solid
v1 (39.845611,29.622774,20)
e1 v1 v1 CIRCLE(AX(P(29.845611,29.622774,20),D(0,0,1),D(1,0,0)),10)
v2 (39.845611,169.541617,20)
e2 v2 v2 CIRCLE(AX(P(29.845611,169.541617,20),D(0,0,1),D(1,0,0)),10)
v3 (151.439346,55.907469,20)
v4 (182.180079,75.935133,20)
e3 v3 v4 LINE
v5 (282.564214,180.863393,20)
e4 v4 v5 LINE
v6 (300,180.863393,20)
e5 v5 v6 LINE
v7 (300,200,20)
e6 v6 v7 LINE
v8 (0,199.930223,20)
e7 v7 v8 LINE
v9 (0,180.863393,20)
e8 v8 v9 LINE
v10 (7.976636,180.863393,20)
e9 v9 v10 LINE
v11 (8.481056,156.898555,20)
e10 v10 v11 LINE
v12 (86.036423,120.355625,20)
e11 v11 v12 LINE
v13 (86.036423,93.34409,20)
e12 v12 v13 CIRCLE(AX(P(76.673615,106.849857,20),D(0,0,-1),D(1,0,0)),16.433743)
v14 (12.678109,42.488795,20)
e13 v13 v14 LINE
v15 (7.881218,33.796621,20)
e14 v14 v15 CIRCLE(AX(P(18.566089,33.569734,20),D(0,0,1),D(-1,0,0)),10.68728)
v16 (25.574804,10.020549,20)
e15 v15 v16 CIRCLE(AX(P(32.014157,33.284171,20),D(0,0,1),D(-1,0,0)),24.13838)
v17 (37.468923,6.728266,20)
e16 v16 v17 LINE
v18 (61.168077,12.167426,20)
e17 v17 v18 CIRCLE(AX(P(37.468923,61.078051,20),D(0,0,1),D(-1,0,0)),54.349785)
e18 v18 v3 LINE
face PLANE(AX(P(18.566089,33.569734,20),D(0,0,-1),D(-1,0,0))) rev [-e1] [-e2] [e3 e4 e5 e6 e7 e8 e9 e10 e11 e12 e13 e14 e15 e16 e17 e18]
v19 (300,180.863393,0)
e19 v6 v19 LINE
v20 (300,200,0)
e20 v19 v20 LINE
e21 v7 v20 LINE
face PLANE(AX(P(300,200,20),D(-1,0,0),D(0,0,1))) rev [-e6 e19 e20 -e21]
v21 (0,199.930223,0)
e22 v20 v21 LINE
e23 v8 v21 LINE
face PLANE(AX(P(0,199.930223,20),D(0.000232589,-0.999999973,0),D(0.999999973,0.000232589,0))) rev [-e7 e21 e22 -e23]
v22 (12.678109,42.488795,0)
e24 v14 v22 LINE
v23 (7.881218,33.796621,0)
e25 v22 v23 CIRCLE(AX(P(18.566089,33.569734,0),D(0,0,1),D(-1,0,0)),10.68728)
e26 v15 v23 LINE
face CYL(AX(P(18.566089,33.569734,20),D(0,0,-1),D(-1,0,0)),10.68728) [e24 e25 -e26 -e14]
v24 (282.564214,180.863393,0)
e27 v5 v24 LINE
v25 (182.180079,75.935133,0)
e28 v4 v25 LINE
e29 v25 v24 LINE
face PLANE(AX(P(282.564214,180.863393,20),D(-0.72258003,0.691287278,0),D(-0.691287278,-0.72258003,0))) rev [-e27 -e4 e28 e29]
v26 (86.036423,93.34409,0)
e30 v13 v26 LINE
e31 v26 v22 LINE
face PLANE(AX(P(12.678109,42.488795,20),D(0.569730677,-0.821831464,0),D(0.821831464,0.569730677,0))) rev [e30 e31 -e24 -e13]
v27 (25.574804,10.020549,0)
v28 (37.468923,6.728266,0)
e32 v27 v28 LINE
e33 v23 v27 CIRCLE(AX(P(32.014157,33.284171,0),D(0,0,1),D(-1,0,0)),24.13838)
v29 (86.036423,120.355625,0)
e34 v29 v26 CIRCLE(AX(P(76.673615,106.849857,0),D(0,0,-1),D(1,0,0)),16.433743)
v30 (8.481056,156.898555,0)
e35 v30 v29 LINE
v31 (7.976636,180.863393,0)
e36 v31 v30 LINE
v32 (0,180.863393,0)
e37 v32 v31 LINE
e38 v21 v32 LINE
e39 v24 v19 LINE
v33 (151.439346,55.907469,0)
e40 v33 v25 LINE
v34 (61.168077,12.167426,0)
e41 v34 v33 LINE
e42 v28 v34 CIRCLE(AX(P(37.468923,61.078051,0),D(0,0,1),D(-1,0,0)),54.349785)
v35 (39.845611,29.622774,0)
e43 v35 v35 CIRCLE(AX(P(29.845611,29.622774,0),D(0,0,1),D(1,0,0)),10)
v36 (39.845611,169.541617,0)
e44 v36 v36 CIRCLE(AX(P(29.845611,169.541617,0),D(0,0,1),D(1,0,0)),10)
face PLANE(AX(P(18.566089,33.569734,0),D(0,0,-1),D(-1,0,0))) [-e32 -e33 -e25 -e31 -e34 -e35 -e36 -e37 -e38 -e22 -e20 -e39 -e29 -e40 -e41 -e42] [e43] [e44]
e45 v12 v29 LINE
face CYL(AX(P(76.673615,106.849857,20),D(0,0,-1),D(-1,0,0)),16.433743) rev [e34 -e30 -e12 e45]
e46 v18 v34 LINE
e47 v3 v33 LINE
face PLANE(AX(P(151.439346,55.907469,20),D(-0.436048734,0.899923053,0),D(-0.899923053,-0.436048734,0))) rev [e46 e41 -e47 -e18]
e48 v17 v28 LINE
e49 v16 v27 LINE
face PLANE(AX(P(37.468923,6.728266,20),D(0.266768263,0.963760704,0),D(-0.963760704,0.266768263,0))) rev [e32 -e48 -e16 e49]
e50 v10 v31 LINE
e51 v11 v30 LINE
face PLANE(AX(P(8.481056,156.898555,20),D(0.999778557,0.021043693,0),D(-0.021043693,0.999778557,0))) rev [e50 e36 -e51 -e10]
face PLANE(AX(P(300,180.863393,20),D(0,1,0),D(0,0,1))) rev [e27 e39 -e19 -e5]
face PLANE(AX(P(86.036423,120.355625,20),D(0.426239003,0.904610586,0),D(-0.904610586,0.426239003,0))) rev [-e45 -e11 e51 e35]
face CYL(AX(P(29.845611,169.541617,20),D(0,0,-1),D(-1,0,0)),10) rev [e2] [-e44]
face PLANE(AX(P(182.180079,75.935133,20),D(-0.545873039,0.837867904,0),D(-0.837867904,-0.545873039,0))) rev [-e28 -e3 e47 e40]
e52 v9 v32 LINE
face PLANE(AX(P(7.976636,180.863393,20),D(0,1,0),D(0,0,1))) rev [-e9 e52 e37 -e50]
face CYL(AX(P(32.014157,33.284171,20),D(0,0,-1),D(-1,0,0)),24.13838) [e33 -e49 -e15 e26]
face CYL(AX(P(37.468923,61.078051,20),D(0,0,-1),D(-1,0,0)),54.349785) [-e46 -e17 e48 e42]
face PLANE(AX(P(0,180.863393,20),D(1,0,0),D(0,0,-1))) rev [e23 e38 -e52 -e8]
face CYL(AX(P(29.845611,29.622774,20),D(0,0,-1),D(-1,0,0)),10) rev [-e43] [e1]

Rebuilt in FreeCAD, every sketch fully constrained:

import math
import FreeCAD as App
import Part
import Sketcher

V = App.Vector
Q = App.Units.Quantity

doc = App.newDocument("Part")
params = doc.addObject("Spreadsheet::Sheet", "Params")
for row, (alias, value) in enumerate([
    ("sketch1_diameter", "20 mm"),
    ("pad1_length", "20 mm"),
], start=1):
    params.set(f"A{row}", alias)
    params.set(f"B{row}", "=" + value)
    params.setAlias(f"B{row}", alias)

body = doc.addObject("PartDesign::Body", "Body")

sketch1 = body.newObject("Sketcher::SketchObject", "Sketch")
sketch1.AttachmentSupport = (doc.getObject("XY_Plane"), [""])
sketch1.MapMode = "FlatFace"
sketch1.addGeometry([
    Part.LineSegment(V(86, 93, 0), V(13, 42, 0)),
    Part.ArcOfCircle(Part.Circle(V(19, 34, 0), V(0, 0, 1), 11), math.radians(123), math.radians(179)),
    Part.ArcOfCircle(Part.Circle(V(32, 33, 0), V(0, 0, 1), 24), math.radians(179), math.radians(255)),
    Part.LineSegment(V(26, 10, 0), V(37, 7, 0)),
    Part.ArcOfCircle(Part.Circle(V(37, 61, 0), V(0, 0, 1), 54), math.radians(-90), math.radians(-64)),
    Part.LineSegment(V(61, 12, 0), V(151, 56, 0)),
    Part.LineSegment(V(151, 56, 0), V(182, 76, 0)),
    Part.LineSegment(V(182, 76, 0), V(283, 181, 0)),
    Part.LineSegment(V(283, 181, 0), V(300, 181, 0)),
    Part.LineSegment(V(300, 181, 0), V(300, 200, 0)),
    Part.LineSegment(V(300, 200, 0), V(0, 200, 0)),
    Part.LineSegment(V(0, 200, 0), V(0, 181, 0)),
    Part.LineSegment(V(0, 181, 0), V(8, 181, 0)),
    Part.LineSegment(V(8, 181, 0), V(8, 157, 0)),
    Part.LineSegment(V(8, 157, 0), V(86, 120, 0)),
    Part.ArcOfCircle(Part.Circle(V(77, 107, 0), V(0, 0, 1), 16), math.radians(-55), math.radians(55)),
    Part.Circle(V(30, 30, 0), V(0, 0, 1), 10),
    Part.Circle(V(30, 170, 0), V(0, 0, 1), 10),
], False)
sketch1.addConstraint([
    Sketcher.Constraint("Coincident", 0, 2, 1, 1),
    Sketcher.Constraint("Tangent", 1, 2, 2, 1),
    Sketcher.Constraint("Tangent", 2, 2, 3, 1),
    Sketcher.Constraint("Coincident", 3, 2, 4, 1),
    Sketcher.Constraint("Tangent", 4, 2, 5, 1),
    Sketcher.Constraint("Coincident", 5, 2, 6, 1),
    Sketcher.Constraint("Coincident", 6, 2, 7, 1),
    Sketcher.Constraint("Coincident", 7, 2, 8, 1),
    Sketcher.Constraint("Coincident", 8, 2, 9, 1),
    Sketcher.Constraint("Coincident", 9, 2, 10, 1),
    Sketcher.Constraint("Coincident", 10, 2, 11, 1),
    Sketcher.Constraint("Coincident", 11, 2, 12, 1),
    Sketcher.Constraint("Coincident", 12, 2, 13, 1),
    Sketcher.Constraint("Coincident", 13, 2, 14, 1),
    Sketcher.Constraint("Coincident", 14, 2, 15, 2),
    Sketcher.Constraint("Tangent", 15, 1, 0, 1),
    Sketcher.Constraint("Horizontal", 8),
    Sketcher.Constraint("Vertical", 9),
    Sketcher.Constraint("Vertical", 11),
    Sketcher.Constraint("Horizontal", 12),
    Sketcher.Constraint("Equal", 16, 17),
    Sketcher.Constraint("PointOnObject", 10, 2, -2),
    Sketcher.Constraint("Horizontal", 8, 2, 11, 2),
    Sketcher.Constraint("Vertical", 16, 3, 17, 3),
    Sketcher.Constraint("Vertical", 4, 3, 3, 2),
    Sketcher.Constraint("Vertical", 14, 2, 15, 1),
    Sketcher.Constraint("Diameter", 16, Q("20 mm")),
    Sketcher.Constraint("DistanceX", -1, 1, 8, 2, Q("300 mm")),
    Sketcher.Constraint("DistanceY", -1, 1, 9, 2, Q("200 mm")),
    Sketcher.Constraint("Radius", 1, Q("10.68728 mm")),
    Sketcher.Constraint("Radius", 2, Q("24.13838 mm")),
    Sketcher.Constraint("Radius", 4, Q("54.349785 mm")),
    Sketcher.Constraint("Radius", 15, Q("16.433743 mm")),
    Sketcher.Constraint("DistanceX", 4, 2, 6, 2, Q("121.012002 mm")),
    Sketcher.Constraint("DistanceY", 11, 2, 11, 1, Q("19.06683 mm")),
    Sketcher.Constraint("DistanceX", 0, 2, 16, 3, Q("17.167502 mm")),
    Sketcher.Constraint("DistanceX", 15, 3, 7, 2, Q("205.890599 mm")),
    Sketcher.Constraint("DistanceY", 0, 2, 11, 2, Q("138.374598 mm")),
    Sketcher.Constraint("DistanceY", 15, 3, 13, 2, Q("50.048698 mm")),
    Sketcher.Constraint("DistanceX", 4, 3, 14, 2, Q("48.5675 mm")),
    Sketcher.Constraint("Distance", 0, Q("89.261992 mm")),
    Sketcher.Constraint("Distance", 3, Q("12.341361 mm")),
    Sketcher.Constraint("Distance", 7, Q("145.21334 mm")),
    Sketcher.Constraint("DistanceX", 8, 1, 8, 2, Q("17.435786 mm")),
    Sketcher.Constraint("DistanceX", 12, 1, 12, 2, Q("7.976636 mm")),
    Sketcher.Constraint("DistanceY", 9, 1, 9, 2, Q("19.136607 mm")),
    Sketcher.Constraint("DistanceX", -1, 1, 1, 3, Q("18.566089 mm")),
    Sketcher.Constraint("DistanceY", -1, 1, 2, 3, Q("33.284171 mm")),
    Sketcher.Constraint("DistanceY", -1, 1, 4, 3, Q("61.078051 mm")),
    Sketcher.Constraint("DistanceY", -1, 1, 5, 2, Q("55.907469 mm")),
    Sketcher.Constraint("DistanceX", -1, 1, 6, 2, Q("182.180079 mm")),
    Sketcher.Constraint("DistanceY", 16, 3, 1, 3, Q("3.94696 mm")),
    Sketcher.Constraint("DistanceY", 15, 3, 17, 3, Q("62.69176 mm")),
    Sketcher.Constraint("DistanceX", 12, 2, 13, 2, Q("0.50442 mm")),
])
sketch1.setExpression("Constraints[26]", "Params.sketch1_diameter")
pad1 = body.newObject("PartDesign::Pad", "Pad")
pad1.Profile = sketch1
pad1.setExpression("Length", "Params.pad1_length")

doc.recompute()
